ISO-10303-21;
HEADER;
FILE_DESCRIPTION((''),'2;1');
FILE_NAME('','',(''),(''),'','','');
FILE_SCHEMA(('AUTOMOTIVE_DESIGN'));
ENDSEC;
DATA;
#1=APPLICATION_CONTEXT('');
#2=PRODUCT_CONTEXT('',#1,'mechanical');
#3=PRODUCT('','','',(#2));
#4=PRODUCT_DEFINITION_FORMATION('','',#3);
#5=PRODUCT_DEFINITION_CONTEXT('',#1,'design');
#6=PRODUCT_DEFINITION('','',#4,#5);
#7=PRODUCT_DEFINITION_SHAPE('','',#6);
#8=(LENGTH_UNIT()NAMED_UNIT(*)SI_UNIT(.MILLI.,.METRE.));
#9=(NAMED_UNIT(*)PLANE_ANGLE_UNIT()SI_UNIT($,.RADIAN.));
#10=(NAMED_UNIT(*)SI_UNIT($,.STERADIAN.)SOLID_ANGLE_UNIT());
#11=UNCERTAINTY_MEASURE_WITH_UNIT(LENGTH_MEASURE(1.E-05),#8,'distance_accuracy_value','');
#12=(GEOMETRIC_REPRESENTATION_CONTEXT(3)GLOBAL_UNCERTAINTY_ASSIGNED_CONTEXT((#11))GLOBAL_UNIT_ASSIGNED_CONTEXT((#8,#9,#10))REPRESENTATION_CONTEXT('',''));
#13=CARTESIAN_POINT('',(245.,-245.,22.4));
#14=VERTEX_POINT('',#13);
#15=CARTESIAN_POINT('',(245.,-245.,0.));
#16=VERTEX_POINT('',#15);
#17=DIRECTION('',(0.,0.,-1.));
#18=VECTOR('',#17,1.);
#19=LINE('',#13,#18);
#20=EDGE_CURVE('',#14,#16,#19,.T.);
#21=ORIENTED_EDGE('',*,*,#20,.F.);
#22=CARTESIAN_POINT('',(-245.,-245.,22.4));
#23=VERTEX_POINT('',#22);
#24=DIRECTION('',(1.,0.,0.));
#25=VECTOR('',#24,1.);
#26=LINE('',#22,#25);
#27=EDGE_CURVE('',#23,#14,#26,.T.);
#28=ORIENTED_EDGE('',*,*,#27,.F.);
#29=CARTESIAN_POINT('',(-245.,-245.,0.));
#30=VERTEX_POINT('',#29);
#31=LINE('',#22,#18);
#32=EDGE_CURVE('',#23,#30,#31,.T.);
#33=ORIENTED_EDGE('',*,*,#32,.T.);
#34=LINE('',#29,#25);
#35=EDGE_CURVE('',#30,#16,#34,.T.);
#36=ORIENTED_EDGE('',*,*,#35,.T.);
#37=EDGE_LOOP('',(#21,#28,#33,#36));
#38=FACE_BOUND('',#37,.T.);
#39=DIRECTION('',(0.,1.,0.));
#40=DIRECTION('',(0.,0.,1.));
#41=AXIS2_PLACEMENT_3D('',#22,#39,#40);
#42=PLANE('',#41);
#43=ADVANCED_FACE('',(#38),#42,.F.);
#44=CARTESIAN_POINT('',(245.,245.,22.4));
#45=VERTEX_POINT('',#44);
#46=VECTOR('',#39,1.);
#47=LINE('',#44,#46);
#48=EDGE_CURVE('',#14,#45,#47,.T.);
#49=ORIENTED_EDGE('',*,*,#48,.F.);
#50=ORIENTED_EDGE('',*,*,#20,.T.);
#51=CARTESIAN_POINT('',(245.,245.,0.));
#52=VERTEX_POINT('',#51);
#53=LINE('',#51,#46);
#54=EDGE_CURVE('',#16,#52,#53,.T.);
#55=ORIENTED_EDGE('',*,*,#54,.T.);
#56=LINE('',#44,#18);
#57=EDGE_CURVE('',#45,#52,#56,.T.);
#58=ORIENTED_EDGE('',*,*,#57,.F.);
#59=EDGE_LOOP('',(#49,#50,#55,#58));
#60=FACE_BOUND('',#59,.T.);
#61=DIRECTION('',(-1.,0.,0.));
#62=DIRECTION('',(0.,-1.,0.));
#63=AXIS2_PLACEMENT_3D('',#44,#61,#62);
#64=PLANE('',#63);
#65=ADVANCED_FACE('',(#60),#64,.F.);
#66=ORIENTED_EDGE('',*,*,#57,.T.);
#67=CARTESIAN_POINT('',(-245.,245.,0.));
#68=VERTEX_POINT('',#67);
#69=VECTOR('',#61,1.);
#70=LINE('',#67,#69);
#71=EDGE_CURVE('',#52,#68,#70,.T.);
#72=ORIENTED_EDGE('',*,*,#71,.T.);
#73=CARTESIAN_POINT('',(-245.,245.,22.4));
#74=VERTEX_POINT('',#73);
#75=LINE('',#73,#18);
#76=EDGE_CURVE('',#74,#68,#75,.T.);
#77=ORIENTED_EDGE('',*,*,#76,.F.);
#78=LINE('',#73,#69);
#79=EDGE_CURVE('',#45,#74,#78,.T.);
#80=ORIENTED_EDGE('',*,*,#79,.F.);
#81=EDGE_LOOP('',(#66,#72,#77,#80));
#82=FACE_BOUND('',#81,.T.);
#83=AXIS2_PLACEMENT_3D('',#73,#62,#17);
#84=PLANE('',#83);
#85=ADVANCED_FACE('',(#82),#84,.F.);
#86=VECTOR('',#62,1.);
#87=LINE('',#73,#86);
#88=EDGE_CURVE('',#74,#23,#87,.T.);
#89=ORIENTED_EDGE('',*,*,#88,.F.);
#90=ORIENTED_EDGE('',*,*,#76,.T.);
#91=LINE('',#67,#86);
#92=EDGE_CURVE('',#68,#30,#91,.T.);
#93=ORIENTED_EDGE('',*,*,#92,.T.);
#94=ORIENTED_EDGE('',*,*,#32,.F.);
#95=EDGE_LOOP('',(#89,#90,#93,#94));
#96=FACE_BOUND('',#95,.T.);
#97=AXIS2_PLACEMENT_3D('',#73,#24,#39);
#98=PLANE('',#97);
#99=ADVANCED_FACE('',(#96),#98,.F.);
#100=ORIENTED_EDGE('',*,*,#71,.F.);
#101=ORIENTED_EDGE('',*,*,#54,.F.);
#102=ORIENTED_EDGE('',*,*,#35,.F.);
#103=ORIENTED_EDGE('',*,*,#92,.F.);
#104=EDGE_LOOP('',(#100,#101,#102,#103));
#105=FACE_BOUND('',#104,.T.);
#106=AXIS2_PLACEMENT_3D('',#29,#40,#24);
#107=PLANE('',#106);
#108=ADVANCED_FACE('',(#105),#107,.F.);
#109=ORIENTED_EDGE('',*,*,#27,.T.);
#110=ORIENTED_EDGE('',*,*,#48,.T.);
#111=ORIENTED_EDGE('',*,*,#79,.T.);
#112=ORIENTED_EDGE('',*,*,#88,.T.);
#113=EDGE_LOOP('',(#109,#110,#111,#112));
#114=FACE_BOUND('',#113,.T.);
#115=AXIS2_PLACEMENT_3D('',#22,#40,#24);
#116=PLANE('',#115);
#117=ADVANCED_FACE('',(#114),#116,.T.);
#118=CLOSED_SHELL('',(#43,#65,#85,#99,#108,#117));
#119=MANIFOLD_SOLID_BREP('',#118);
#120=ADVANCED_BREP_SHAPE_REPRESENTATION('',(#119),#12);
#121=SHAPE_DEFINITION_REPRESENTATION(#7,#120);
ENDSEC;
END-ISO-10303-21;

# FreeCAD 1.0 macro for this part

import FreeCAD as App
import Part
import Sketcher

V = App.Vector
Q = App.Units.Quantity

doc = App.newDocument("Part")
body = doc.addObject("PartDesign::Body", "Body")

# Sketch on XY plane
sketch1 = body.newObject("Sketcher::SketchObject", "Sketch")
sketch1.AttachmentSupport = (doc.getObject("XY_Plane"), [""])
sketch1.MapMode = "FlatFace"
sketch1.addGeometry([
    Part.LineSegment(V(-245, 245, 0), V(-245, -245, 0)),
    Part.LineSegment(V(-245, -245, 0), V(245, -245, 0)),
    Part.LineSegment(V(245, -245, 0), V(245, 245, 0)),
    Part.LineSegment(V(245, 245, 0), V(-245, 245, 0)),
], False)
sketch1.addConstraint([
    Sketcher.Constraint("Coincident", 0, 2, 1, 1),
    Sketcher.Constraint("Coincident", 1, 2, 2, 1),
    Sketcher.Constraint("Coincident", 2, 2, 3, 1),
    Sketcher.Constraint("Coincident", 3, 2, 0, 1),
    Sketcher.Constraint("Vertical", 0),
    Sketcher.Constraint("Horizontal", 1),
    Sketcher.Constraint("Vertical", 2),
    Sketcher.Constraint("Horizontal", 3),
    Sketcher.Constraint("Symmetric", 0, 2, 2, 2, -1, 1),
    Sketcher.Constraint("Equal", 3, 0),
    Sketcher.Constraint("DistanceX", 1, 1, 1, 2, Q("490 mm")),
])
pad1 = body.newObject("PartDesign::Pad", "Pad")
pad1.Profile = sketch1
pad1.Length = 22.4

doc.recompute()
